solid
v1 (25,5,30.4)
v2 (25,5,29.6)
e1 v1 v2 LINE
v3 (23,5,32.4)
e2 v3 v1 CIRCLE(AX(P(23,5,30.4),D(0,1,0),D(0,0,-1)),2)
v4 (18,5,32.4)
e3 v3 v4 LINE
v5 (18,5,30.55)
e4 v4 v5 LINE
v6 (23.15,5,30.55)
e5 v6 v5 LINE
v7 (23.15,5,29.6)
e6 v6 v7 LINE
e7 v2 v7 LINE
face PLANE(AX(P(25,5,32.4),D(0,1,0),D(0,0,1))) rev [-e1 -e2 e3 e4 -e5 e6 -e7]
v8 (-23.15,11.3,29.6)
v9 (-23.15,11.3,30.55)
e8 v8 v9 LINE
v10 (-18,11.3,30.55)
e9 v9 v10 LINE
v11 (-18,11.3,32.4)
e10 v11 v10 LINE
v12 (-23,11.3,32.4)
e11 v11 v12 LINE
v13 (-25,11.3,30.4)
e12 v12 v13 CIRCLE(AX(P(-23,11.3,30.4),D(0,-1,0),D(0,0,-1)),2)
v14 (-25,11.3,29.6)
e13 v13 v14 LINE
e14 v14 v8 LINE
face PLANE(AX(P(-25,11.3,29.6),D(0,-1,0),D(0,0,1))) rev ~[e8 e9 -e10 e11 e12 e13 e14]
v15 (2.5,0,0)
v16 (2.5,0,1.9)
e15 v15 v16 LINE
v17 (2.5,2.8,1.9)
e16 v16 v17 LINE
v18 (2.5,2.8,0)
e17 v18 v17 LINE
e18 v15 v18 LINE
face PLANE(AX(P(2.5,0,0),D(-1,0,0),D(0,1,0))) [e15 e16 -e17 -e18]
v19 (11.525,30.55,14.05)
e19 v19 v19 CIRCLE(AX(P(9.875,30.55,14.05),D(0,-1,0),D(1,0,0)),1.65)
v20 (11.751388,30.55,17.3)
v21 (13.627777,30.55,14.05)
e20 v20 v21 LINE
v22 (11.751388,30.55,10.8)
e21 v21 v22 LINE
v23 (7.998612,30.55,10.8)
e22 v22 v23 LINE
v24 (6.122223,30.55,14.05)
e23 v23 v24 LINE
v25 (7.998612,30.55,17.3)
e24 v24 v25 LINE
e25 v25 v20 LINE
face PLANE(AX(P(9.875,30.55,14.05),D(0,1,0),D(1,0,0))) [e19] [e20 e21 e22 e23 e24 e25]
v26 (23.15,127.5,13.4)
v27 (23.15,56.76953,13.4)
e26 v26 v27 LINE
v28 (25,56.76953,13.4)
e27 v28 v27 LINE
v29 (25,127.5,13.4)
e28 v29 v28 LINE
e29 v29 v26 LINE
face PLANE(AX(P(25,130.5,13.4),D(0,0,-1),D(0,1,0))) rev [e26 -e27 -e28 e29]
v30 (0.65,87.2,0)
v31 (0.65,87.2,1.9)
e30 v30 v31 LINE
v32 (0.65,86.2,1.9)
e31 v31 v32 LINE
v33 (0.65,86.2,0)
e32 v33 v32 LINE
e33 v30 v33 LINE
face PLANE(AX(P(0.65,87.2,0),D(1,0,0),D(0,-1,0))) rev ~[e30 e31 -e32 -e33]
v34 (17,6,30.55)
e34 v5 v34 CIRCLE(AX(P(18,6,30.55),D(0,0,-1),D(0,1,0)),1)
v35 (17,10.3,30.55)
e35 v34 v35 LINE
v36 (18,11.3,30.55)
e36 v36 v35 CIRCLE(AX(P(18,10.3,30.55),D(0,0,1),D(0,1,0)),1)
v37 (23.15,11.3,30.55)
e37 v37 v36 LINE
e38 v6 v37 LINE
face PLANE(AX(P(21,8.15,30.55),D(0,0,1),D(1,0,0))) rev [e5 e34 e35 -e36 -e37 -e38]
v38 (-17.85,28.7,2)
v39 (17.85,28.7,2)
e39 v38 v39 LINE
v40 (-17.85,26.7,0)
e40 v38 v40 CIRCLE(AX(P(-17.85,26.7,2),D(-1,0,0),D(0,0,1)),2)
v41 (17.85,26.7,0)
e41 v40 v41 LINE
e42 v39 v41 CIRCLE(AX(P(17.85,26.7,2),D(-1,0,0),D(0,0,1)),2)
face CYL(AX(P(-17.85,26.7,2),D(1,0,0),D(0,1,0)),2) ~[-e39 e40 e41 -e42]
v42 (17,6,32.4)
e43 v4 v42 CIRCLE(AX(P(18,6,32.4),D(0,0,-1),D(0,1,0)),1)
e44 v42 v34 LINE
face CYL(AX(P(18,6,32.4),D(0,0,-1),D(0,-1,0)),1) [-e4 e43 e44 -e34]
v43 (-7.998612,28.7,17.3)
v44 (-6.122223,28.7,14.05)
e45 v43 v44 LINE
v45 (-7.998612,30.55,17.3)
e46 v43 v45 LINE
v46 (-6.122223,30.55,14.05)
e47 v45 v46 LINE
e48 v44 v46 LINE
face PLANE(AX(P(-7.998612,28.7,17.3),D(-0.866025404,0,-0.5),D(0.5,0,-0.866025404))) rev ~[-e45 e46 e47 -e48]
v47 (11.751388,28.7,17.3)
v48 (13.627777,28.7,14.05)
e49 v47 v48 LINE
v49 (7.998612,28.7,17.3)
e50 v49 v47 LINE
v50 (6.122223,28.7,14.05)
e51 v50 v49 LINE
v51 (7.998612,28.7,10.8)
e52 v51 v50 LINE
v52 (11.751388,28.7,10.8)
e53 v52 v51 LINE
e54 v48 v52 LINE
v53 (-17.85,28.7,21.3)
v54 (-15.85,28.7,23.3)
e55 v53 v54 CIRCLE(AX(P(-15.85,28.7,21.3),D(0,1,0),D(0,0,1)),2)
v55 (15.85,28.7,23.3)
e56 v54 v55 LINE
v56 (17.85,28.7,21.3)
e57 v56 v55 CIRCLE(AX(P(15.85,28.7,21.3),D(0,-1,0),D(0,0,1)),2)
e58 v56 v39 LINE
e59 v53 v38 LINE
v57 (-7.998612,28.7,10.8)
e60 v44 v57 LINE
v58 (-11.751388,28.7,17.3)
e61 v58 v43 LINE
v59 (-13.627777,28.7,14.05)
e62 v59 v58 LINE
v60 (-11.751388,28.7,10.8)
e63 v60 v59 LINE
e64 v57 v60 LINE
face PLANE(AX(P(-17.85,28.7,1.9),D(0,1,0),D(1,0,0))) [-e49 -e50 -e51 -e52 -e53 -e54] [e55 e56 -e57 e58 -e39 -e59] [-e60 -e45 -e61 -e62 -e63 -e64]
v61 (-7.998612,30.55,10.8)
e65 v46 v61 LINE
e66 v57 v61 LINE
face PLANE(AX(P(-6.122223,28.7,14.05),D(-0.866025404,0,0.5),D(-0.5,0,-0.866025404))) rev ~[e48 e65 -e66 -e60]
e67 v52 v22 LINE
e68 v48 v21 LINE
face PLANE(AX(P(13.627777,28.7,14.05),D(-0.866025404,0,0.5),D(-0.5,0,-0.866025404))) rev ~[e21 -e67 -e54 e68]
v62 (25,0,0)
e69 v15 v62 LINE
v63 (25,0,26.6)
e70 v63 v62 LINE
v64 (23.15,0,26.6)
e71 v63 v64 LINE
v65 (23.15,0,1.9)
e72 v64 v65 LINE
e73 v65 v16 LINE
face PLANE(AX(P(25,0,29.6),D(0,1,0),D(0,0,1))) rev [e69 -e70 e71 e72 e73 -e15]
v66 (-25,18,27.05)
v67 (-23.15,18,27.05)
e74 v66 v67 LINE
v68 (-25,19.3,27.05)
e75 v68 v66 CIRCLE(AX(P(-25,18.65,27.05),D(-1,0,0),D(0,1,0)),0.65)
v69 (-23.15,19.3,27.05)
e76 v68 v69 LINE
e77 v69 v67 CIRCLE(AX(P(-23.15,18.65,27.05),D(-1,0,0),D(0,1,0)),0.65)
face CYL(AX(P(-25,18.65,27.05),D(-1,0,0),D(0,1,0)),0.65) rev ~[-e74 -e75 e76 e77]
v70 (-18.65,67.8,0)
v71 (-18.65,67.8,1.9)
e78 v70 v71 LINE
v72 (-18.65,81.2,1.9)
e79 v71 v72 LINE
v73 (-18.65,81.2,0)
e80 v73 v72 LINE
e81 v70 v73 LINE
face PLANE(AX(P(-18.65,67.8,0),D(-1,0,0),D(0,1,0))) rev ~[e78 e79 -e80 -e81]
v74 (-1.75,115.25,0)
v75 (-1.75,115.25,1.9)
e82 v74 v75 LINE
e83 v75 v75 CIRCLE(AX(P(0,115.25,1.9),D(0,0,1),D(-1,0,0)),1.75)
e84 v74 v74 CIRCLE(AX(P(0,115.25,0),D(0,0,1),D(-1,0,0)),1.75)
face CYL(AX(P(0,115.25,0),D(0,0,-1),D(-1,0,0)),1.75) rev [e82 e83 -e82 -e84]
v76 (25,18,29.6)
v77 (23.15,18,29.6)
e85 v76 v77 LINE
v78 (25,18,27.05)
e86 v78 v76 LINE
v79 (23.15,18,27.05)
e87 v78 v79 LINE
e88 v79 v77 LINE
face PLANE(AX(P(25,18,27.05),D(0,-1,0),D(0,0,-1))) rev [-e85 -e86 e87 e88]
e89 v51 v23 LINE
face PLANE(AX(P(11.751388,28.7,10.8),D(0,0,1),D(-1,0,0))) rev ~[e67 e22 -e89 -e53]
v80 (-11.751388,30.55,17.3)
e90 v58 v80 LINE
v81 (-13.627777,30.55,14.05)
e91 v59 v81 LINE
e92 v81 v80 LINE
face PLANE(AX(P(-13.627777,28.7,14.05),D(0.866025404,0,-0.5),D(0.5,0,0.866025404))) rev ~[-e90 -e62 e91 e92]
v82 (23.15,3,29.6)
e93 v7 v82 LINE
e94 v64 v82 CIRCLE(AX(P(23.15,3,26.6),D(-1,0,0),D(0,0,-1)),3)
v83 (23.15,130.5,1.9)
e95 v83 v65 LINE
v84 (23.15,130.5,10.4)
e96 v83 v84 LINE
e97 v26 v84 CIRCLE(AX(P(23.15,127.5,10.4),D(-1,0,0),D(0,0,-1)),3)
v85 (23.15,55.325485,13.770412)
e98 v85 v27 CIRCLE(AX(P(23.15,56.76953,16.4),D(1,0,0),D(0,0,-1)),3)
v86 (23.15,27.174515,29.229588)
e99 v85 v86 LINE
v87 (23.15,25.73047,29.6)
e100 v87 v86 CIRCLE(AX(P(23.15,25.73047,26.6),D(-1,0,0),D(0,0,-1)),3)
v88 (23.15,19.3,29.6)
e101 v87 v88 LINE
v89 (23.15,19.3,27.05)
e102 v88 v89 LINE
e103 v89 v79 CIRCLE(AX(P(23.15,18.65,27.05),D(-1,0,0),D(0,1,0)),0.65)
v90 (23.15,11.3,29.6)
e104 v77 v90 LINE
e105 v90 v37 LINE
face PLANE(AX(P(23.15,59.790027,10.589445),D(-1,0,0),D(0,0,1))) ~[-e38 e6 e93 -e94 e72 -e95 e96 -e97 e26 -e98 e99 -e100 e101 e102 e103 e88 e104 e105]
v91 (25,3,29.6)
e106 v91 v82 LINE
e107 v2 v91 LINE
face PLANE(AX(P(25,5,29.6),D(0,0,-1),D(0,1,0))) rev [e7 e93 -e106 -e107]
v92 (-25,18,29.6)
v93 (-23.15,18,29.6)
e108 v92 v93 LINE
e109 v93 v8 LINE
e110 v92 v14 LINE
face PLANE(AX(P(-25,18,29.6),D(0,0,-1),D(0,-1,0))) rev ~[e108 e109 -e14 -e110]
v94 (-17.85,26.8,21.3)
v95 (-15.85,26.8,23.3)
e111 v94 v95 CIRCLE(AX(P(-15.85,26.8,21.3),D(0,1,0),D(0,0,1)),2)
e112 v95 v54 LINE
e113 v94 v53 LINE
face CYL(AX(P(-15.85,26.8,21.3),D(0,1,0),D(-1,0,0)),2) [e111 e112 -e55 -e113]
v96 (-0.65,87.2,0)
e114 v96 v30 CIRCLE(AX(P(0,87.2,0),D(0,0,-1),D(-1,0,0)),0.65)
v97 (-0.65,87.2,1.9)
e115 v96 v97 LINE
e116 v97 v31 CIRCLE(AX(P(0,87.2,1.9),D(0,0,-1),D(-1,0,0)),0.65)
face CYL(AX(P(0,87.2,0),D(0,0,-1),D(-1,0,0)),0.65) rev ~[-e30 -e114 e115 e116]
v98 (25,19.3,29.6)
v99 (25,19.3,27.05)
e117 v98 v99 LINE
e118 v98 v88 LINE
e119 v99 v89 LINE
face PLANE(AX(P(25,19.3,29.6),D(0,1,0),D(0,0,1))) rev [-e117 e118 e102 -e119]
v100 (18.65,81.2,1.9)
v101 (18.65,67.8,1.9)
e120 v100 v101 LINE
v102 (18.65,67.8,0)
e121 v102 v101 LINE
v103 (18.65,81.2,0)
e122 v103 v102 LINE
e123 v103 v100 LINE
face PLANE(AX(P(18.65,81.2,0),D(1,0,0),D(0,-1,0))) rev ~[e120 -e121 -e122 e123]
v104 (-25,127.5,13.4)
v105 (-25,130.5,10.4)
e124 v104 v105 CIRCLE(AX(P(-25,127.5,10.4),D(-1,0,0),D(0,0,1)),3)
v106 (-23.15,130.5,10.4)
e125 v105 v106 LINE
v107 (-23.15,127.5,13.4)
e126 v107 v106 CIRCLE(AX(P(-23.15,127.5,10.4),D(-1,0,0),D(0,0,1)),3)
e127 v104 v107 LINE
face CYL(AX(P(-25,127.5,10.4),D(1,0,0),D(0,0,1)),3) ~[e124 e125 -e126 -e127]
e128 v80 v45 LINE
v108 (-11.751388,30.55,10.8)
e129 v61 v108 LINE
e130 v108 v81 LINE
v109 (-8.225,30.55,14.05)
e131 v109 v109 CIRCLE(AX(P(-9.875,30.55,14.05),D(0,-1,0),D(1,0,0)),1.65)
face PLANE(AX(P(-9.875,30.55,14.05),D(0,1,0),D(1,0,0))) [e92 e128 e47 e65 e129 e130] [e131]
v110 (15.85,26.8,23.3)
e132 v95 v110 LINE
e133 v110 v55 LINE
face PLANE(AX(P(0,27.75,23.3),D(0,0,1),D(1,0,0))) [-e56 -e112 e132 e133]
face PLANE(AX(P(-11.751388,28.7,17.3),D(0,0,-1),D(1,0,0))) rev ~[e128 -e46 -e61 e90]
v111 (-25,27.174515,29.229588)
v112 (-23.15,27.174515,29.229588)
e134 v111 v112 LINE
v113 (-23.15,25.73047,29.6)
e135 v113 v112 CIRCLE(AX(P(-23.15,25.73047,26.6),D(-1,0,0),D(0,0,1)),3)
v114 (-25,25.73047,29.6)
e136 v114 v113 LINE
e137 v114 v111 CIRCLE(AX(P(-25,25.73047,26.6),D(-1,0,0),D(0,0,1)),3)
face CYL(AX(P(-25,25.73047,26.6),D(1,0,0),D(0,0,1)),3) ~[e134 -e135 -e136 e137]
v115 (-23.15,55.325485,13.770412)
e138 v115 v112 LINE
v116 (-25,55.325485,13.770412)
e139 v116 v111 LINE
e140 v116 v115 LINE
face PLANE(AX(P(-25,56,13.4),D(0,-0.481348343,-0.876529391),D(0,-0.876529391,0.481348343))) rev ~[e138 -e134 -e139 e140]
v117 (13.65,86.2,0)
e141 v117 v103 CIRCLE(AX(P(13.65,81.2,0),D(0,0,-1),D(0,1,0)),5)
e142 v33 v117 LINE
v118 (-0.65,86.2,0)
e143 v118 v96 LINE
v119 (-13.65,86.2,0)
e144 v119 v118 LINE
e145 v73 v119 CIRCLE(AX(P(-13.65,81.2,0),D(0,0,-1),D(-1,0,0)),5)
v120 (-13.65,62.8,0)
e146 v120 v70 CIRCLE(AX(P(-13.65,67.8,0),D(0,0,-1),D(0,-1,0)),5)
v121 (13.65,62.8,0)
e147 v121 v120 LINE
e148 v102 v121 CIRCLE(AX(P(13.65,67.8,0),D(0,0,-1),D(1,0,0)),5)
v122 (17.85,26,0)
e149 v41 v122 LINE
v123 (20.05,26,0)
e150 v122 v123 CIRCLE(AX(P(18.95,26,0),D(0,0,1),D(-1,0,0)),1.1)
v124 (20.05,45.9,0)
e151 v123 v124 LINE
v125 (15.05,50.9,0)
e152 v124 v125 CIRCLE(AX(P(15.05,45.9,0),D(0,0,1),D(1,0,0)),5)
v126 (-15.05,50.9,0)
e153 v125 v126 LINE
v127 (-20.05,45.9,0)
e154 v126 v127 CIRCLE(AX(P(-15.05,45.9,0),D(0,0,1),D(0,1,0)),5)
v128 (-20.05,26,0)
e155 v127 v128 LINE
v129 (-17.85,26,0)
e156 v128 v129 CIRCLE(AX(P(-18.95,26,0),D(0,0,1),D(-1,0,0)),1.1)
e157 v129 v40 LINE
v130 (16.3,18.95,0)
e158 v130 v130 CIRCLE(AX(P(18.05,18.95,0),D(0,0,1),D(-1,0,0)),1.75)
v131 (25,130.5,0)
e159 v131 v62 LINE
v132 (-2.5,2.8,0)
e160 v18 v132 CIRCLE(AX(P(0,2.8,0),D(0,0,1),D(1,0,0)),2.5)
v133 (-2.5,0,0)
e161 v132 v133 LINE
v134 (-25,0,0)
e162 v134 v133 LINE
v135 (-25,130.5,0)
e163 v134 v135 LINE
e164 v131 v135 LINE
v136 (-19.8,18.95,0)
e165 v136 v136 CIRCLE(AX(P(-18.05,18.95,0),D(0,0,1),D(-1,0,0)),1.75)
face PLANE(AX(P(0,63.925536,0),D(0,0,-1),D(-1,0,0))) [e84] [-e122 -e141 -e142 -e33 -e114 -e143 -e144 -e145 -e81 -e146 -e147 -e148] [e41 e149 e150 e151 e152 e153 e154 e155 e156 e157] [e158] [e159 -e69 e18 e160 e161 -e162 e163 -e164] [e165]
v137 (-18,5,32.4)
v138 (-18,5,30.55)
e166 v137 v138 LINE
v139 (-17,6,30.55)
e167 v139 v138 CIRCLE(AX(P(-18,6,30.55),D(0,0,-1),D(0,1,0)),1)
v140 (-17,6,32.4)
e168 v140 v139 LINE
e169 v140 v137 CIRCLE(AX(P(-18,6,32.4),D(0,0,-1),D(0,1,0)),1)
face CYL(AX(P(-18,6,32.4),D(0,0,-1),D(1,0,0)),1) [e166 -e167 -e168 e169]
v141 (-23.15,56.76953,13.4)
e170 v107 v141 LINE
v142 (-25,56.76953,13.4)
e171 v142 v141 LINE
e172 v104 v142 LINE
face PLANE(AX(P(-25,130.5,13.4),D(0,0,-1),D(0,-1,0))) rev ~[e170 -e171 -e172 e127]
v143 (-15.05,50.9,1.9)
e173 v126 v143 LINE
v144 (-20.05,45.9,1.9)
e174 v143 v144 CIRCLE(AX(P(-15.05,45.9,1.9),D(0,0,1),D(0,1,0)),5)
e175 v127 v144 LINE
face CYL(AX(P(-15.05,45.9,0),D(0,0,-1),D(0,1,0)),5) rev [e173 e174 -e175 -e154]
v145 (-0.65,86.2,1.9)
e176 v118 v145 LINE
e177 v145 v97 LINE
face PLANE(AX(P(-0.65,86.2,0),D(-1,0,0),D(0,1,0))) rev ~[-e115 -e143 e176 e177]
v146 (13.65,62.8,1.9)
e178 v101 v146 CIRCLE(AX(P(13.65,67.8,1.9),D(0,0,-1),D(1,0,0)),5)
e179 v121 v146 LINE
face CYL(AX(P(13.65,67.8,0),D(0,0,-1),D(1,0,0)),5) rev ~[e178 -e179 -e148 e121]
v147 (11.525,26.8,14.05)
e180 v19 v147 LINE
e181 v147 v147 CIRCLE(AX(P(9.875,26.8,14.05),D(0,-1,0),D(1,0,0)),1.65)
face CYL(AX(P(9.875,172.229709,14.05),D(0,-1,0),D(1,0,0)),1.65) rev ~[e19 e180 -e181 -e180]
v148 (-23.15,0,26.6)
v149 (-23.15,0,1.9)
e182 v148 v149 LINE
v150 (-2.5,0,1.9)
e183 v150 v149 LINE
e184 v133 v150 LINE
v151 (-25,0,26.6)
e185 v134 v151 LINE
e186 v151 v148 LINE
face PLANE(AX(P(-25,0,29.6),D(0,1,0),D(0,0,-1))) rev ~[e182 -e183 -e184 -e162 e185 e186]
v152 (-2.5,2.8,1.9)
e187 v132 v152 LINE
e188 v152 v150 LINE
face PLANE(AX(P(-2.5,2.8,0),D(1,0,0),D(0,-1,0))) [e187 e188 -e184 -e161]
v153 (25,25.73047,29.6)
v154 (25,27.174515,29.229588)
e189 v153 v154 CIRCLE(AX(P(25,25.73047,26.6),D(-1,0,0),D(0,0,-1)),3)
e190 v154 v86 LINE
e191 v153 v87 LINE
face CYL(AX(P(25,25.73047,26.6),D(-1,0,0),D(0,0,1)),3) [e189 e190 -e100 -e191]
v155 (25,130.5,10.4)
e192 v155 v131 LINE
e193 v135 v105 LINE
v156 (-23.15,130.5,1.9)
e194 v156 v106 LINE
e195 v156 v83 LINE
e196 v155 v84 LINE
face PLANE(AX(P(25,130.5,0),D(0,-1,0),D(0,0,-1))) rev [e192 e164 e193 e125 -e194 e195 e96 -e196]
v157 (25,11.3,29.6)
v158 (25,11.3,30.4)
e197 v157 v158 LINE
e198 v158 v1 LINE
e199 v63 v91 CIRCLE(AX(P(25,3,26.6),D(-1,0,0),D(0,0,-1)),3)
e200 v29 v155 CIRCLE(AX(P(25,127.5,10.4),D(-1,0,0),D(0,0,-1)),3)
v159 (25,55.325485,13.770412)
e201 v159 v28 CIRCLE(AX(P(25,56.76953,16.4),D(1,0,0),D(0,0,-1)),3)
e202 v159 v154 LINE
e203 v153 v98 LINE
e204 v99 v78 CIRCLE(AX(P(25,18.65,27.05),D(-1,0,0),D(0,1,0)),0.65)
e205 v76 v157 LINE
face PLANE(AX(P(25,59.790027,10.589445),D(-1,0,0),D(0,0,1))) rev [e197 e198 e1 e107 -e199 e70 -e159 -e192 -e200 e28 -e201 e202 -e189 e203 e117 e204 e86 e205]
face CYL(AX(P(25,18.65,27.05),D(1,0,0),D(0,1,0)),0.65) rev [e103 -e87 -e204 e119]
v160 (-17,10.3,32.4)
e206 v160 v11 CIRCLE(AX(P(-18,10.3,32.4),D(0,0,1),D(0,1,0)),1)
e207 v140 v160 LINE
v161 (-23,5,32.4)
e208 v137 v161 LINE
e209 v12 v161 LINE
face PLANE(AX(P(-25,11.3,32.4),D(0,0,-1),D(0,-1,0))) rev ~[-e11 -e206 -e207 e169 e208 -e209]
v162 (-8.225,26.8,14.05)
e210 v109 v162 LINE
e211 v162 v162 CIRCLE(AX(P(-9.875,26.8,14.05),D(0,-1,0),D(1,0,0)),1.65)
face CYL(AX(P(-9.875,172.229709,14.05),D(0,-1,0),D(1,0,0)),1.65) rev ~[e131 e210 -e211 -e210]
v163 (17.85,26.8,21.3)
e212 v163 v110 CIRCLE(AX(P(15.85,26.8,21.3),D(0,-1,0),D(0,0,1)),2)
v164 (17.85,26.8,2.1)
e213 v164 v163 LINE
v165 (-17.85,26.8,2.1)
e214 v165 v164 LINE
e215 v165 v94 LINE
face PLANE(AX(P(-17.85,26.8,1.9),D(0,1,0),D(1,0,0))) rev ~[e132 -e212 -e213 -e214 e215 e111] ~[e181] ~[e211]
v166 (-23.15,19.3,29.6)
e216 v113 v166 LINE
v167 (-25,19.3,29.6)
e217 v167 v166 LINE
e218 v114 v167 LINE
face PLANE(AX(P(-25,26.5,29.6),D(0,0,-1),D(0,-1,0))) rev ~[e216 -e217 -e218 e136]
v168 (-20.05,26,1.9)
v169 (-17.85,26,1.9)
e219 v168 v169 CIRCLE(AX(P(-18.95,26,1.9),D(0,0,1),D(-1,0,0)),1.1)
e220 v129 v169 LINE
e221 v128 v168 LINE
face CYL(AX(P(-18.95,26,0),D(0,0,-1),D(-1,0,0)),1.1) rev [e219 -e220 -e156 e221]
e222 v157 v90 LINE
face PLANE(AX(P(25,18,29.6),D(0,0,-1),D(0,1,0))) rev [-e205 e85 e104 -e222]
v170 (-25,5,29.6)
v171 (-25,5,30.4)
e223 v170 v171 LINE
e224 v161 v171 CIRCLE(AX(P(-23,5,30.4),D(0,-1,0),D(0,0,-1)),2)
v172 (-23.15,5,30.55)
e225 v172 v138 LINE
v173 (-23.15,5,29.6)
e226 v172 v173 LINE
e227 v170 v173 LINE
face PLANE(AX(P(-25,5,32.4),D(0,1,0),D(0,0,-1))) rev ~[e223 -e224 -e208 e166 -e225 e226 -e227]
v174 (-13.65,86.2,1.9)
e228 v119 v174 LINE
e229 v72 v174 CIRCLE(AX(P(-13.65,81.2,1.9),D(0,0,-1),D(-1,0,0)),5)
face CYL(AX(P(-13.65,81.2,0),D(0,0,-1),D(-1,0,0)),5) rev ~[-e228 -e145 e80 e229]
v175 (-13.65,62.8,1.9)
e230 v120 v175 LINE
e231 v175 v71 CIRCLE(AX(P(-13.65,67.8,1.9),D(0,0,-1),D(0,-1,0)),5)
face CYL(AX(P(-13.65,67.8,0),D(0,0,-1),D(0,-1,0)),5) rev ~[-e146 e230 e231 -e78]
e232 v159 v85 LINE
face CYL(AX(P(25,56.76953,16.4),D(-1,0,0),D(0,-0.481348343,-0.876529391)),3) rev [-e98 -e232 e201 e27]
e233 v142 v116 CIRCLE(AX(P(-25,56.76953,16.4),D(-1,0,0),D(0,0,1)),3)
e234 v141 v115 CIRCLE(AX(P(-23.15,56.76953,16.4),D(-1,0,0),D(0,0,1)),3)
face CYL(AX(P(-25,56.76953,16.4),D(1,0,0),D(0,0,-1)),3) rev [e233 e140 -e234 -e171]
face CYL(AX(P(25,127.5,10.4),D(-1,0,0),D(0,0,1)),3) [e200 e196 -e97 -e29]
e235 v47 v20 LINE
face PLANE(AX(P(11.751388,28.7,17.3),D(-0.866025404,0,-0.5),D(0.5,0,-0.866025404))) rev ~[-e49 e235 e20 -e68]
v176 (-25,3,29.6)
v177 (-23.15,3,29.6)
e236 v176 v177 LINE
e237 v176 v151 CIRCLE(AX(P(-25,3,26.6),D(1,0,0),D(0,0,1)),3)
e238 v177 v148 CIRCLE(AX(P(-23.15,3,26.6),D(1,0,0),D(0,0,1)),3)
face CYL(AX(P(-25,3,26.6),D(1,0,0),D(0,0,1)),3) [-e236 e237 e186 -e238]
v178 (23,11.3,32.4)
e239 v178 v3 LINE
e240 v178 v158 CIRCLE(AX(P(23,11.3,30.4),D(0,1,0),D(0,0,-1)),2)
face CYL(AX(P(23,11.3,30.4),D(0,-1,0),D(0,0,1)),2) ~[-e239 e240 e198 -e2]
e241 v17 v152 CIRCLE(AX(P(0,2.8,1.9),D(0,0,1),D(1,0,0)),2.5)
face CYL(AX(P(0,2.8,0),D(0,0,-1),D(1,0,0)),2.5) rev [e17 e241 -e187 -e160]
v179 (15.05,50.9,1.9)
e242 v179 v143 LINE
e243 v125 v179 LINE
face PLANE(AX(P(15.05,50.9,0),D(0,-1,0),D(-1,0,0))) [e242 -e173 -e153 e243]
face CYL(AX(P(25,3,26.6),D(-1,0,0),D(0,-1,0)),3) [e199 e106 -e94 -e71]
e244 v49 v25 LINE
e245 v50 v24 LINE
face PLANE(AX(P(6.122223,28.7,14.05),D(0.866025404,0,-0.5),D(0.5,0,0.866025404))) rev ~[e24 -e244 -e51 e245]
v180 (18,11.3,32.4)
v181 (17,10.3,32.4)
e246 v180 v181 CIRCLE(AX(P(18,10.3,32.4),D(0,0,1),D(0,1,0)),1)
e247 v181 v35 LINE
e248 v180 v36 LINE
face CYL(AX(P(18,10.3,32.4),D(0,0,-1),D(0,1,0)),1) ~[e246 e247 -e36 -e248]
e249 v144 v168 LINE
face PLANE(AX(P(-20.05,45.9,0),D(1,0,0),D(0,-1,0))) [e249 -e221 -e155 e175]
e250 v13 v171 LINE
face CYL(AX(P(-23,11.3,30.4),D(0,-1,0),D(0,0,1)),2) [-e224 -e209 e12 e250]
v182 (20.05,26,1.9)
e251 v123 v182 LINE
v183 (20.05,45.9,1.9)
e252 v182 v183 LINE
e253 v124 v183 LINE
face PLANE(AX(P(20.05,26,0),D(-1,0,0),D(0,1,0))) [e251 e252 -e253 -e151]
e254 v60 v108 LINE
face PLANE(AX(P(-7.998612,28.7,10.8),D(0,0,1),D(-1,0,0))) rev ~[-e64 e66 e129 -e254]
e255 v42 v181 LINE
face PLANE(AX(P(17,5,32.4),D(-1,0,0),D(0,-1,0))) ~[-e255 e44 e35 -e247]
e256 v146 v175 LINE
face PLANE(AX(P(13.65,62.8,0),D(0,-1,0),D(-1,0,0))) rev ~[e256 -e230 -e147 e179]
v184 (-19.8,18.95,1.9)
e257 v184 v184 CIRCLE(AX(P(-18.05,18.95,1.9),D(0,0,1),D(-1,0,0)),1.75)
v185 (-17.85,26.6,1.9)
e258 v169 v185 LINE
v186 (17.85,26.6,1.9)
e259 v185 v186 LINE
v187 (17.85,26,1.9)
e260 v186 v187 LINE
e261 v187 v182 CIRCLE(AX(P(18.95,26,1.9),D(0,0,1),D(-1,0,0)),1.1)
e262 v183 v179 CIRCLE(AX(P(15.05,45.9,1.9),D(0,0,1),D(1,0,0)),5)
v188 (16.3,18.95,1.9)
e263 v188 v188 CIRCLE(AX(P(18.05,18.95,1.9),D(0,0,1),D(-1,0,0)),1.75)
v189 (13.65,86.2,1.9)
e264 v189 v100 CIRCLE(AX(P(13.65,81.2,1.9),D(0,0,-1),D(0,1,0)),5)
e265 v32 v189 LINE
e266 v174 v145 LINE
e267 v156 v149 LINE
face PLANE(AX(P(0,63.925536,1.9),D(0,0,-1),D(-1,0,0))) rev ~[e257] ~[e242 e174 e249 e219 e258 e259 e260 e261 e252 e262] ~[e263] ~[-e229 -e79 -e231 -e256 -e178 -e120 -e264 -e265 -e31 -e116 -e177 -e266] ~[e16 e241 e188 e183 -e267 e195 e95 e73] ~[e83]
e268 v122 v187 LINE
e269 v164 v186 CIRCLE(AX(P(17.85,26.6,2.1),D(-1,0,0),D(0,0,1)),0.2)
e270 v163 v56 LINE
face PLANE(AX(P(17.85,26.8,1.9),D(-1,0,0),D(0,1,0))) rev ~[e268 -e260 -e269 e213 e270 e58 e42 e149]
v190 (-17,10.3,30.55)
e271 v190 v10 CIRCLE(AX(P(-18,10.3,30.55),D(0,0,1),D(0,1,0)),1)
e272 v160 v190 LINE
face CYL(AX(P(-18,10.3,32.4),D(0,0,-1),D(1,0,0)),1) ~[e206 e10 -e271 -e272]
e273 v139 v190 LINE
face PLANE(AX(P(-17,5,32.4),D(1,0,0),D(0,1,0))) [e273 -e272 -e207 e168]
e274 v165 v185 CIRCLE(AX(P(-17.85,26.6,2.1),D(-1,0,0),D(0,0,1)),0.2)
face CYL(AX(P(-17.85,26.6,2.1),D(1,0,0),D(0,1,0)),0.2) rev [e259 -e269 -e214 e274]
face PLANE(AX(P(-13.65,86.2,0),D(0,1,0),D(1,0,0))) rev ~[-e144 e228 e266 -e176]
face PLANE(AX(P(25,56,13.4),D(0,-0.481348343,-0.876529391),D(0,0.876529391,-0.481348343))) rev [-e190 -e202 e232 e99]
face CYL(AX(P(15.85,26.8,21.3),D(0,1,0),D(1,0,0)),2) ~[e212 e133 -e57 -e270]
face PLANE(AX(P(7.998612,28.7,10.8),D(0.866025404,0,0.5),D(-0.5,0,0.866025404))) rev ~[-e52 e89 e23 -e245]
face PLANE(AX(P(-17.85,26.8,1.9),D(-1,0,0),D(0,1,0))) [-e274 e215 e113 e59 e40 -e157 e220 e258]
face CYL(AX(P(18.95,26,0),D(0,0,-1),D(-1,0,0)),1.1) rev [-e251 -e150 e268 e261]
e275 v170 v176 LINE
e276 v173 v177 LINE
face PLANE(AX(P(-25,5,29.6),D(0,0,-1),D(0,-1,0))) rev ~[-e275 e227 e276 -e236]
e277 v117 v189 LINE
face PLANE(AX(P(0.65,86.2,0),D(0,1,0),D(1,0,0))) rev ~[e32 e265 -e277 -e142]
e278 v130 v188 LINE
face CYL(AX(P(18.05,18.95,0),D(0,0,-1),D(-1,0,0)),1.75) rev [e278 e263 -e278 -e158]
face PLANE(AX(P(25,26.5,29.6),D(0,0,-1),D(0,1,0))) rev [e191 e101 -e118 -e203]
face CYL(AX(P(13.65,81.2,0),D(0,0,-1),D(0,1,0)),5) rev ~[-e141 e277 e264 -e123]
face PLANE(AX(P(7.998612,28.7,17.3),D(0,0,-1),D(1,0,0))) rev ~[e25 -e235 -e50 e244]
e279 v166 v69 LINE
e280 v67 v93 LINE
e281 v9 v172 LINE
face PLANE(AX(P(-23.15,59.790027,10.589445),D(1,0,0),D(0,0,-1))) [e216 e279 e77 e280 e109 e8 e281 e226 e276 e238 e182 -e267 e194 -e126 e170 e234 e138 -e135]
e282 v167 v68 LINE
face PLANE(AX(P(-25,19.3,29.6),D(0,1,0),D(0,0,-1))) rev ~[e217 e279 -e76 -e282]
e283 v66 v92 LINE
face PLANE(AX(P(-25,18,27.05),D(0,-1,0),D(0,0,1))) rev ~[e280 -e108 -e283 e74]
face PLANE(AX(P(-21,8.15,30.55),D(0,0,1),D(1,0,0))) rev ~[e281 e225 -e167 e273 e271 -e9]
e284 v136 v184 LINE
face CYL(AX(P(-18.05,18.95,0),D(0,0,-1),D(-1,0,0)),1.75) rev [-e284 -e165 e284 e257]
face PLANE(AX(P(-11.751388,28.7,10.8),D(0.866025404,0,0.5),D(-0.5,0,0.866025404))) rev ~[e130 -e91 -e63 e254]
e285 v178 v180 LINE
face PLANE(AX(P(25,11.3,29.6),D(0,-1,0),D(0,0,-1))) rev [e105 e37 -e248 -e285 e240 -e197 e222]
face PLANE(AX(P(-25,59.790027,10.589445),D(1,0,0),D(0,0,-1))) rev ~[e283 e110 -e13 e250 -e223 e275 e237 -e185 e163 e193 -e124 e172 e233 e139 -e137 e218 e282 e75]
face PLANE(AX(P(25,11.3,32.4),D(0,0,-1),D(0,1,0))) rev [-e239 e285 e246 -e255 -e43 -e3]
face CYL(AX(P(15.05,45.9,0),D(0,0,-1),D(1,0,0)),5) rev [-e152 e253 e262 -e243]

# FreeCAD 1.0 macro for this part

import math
import FreeCAD as App
import Part
import Sketcher
Q = App.Units.Quantity


def edges_at(feature, points):
    """Names of the edges that pass closest to the given points."""
    edges = feature.Shape.Edges
    near = lambda p: min(range(len(edges)), key=lambda i: edges[i].distToShape(Part.Vertex(*p))[0])
    return sorted({f"Edge{near(p) + 1}" for p in points})

doc = App.newDocument("Part")
params = doc.addObject("Spreadsheet::Sheet", "Params")
for row, (alias, value) in enumerate([
    ("sketch1_radius", "5 mm"),
    ("sketch1_diameter", "3.5 mm"),
    ("sketch1_radius2", "2.5 mm"),
    ("sketch1_radius3", "1.1 mm"),
    ("sketch1_width", "50 mm"),
    ("pad1_length", "1.9 mm"),
    ("sketch2_width", "35.7 mm"),
    ("sketch2_height", "1.9 mm"),
    ("pad2_length", "21.4 mm"),
    ("fillet_radius", "2 mm"),
    ("fillet2_radius", "0.2 mm"),
    ("fillet3_radius", "2 mm"),
    ("pad3_length", "1.85 mm"),
    ("sketch4_diameter", "3.3 mm"),
    ("hole_diameter", "3.3 mm"),
    ("sketch5_width", "5 mm"),
    ("sketch5_radius", "0.65 mm"),
    ("sketch5_width2", "74.5 mm"),
    ("sketch5_width3", "130.5 mm"),
    ("sketch5_width4", "6.3 mm"),
    ("pad4_length", "1.85 mm"),
    ("fillet4_radius", "3 mm"),
    ("sketch6_width", "8 mm"),
    ("sketch6_height", "6.3 mm"),
    ("pad5_length", "1.85 mm"),
    ("fillet5_radius", "1 mm"),
    ("fillet6_radius", "2 mm"),
    ("fillet7_radius", "3 mm"),
    ("fillet8_radius", "1 mm"),
    ("fillet9_radius", "2 mm"),
], start=1):
    params.set(f"A{row}", alias)
    params.set(f"B{row}", "=" + value)
    params.setAlias(f"B{row}", alias)

body = doc.addObject("PartDesign::Body", "Body")

sketch1 = body.newObject("Sketcher::SketchObject", "Sketch")
sketch1.AttachmentSupport = (doc.getObject("XY_Plane"), [""])
sketch1.MapMode = "FlatFace"
sketch1.addGeometry([
    Part.LineSegment(App.Vector(2.5, 0, 0), App.Vector(25, 0, 0)),
    Part.LineSegment(App.Vector(25, 0, 0), App.Vector(25, 130.5, 0)),
    Part.LineSegment(App.Vector(25, 130.5, 0), App.Vector(-25, 130.5, 0)),
    Part.LineSegment(App.Vector(-25, 130.5, 0), App.Vector(-25, 0, 0)),
    Part.LineSegment(App.Vector(-25, 0, 0), App.Vector(-2.5, 0, 0)),
    Part.LineSegment(App.Vector(-2.5, 0, 0), App.Vector(-2.5, 2.8, 0)),
    Part.ArcOfCircle(Part.Circle(App.Vector(0, 2.8, 0), App.Vector(0, 0, 1), 2.5), math.radians(0), math.radians(180)),
    Part.LineSegment(App.Vector(2.5, 2.8, 0), App.Vector(2.5, 0, 0)),
    Part.Circle(App.Vector(18.1, 18.9, 0), App.Vector(0, 0, 1), 1.8),
    Part.ArcOfCircle(Part.Circle(App.Vector(-18.9, 26, 0), App.Vector(0, 0, 1), 1.1), math.radians(180), math.radians(360)),
    Part.LineSegment(App.Vector(-20.1, 26, 0), App.Vector(-20.1, 45.9, 0)),
    Part.ArcOfCircle(Part.Circle(App.Vector(-15.1, 45.9, 0), App.Vector(0, 0, 1), 5), math.radians(90), math.radians(180)),
    Part.LineSegment(App.Vector(-15.1, 50.9, 0), App.Vector(15.1, 50.9, 0)),
    Part.ArcOfCircle(Part.Circle(App.Vector(15.1, 45.9, 0), App.Vector(0, 0, 1), 5), math.radians(0), math.radians(90)),
    Part.LineSegment(App.Vector(20.1, 45.9, 0), App.Vector(20.1, 26, 0)),
    Part.ArcOfCircle(Part.Circle(App.Vector(18.9, 26, 0), App.Vector(0, 0, 1), 1.1), math.radians(180), math.radians(360)),
    Part.LineSegment(App.Vector(17.9, 26, 0), App.Vector(17.9, 28.7, 0)),
    Part.LineSegment(App.Vector(17.9, 28.7, 0), App.Vector(-17.9, 28.7, 0)),
    Part.LineSegment(App.Vector(-17.9, 28.7, 0), App.Vector(-17.9, 26, 0)),
    Part.Circle(App.Vector(-18.1, 18.9, 0), App.Vector(0, 0, 1), 1.8),
    Part.LineSegment(App.Vector(-13.7, 86.2, 0), App.Vector(-0.7, 86.2, 0)),
    Part.LineSegment(App.Vector(-0.7, 86.2, 0), App.Vector(-0.7, 87.2, 0)),
    Part.ArcOfCircle(Part.Circle(App.Vector(0, 87.2, 0), App.Vector(0, 0, 1), 0.7), math.radians(0), math.radians(180)),
    Part.LineSegment(App.Vector(0.7, 87.2, 0), App.Vector(0.7, 86.2, 0)),
    Part.LineSegment(App.Vector(0.7, 86.2, 0), App.Vector(13.7, 86.2, 0)),
    Part.ArcOfCircle(Part.Circle(App.Vector(13.7, 81.2, 0), App.Vector(0, 0, 1), 5), math.radians(0), math.radians(90)),
    Part.LineSegment(App.Vector(18.6, 81.2, 0), App.Vector(18.6, 67.8, 0)),
    Part.ArcOfCircle(Part.Circle(App.Vector(13.7, 67.8, 0), App.Vector(0, 0, 1), 5), math.radians(-90), math.radians(0)),
    Part.LineSegment(App.Vector(13.7, 62.8, 0), App.Vector(-13.7, 62.8, 0)),
    Part.ArcOfCircle(Part.Circle(App.Vector(-13.7, 67.8, 0), App.Vector(0, 0, 1), 5), math.radians(180), math.radians(270)),
    Part.LineSegment(App.Vector(-18.6, 67.8, 0), App.Vector(-18.6, 81.2, 0)),
    Part.ArcOfCircle(Part.Circle(App.Vector(-13.7, 81.2, 0), App.Vector(0, 0, 1), 5), math.radians(90), math.radians(180)),
    Part.Circle(App.Vector(0, 115.2, 0), App.Vector(0, 0, 1), 1.8),
], False)
sketch1.addConstraint([
    Sketcher.Constraint("Coincident", 0, 2, 1, 1),
    Sketcher.Constraint("Coincident", 1, 2, 2, 1),
    Sketcher.Constraint("Coincident", 2, 2, 3, 1),
    Sketcher.Constraint("Coincident", 3, 2, 4, 1),
    Sketcher.Constraint("Coincident", 4, 2, 5, 1),
    Sketcher.Constraint("Tangent", 5, 2, 6, 2),
    Sketcher.Constraint("Tangent", 6, 1, 7, 1),
    Sketcher.Constraint("Coincident", 7, 2, 0, 1),
    Sketcher.Constraint("Tangent", 9, 1, 10, 1),
    Sketcher.Constraint("Tangent", 10, 2, 11, 2),
    Sketcher.Constraint("Tangent", 11, 1, 12, 1),
    Sketcher.Constraint("Tangent", 12, 2, 13, 2),
    Sketcher.Constraint("Tangent", 13, 1, 14, 1),
    Sketcher.Constraint("Tangent", 14, 2, 15, 2),
    Sketcher.Constraint("Tangent", 15, 1, 16, 1),
    Sketcher.Constraint("Coincident", 16, 2, 17, 1),
    Sketcher.Constraint("Coincident", 17, 2, 18, 1),
    Sketcher.Constraint("Tangent", 18, 2, 9, 2),
    Sketcher.Constraint("Coincident", 20, 2, 21, 1),
    Sketcher.Constraint("Tangent", 21, 2, 22, 2),
    Sketcher.Constraint("Tangent", 22, 1, 23, 1),
    Sketcher.Constraint("Coincident", 23, 2, 24, 1),
    Sketcher.Constraint("Tangent", 24, 2, 25, 2),
    Sketcher.Constraint("Tangent", 25, 1, 26, 1),
    Sketcher.Constraint("Tangent", 26, 2, 27, 2),
    Sketcher.Constraint("Tangent", 27, 1, 28, 1),
    Sketcher.Constraint("Tangent", 28, 2, 29, 2),
    Sketcher.Constraint("Tangent", 29, 1, 30, 1),
    Sketcher.Constraint("Tangent", 30, 2, 31, 2),
    Sketcher.Constraint("Tangent", 31, 1, 20, 1),
    Sketcher.Constraint("Horizontal", 0),
    Sketcher.Constraint("Vertical", 1),
    Sketcher.Constraint("Horizontal", 2),
    Sketcher.Constraint("Vertical", 3),
    Sketcher.Constraint("Horizontal", 4),
    Sketcher.Constraint("Vertical", 5),
    Sketcher.Constraint("Vertical", 7),
    Sketcher.Constraint("Vertical", 10),
    Sketcher.Constraint("Horizontal", 12),
    Sketcher.Constraint("Vertical", 14),
    Sketcher.Constraint("Vertical", 16),
    Sketcher.Constraint("Horizontal", 17),
    Sketcher.Constraint("Vertical", 18),
    Sketcher.Constraint("Horizontal", 20),
    Sketcher.Constraint("Vertical", 21),
    Sketcher.Constraint("Vertical", 23),
    Sketcher.Constraint("Horizontal", 24),
    Sketcher.Constraint("Vertical", 26),
    Sketcher.Constraint("Horizontal", 28),
    Sketcher.Constraint("Vertical", 30),
    Sketcher.Constraint("Equal", 11, 13),
    Sketcher.Constraint("Equal", 9, 15),
    Sketcher.Constraint("Equal", 8, 19),
    Sketcher.Constraint("Equal", 13, 25),
    Sketcher.Constraint("Equal", 25, 27),
    Sketcher.Constraint("Equal", 27, 29),
    Sketcher.Constraint("Equal", 29, 31),
    Sketcher.Constraint("Equal", 19, 32),
    Sketcher.Constraint("Symmetric", 0, 2, 3, 2, -1, 1),
    Sketcher.Constraint("Symmetric", 9, 3, 15, 3, -2),
    Sketcher.Constraint("Symmetric", 8, 3, 19, 3, -2),
    Sketcher.Constraint("Symmetric", 25, 3, 31, 3, -2),
    Sketcher.Constraint("Symmetric", 4, 2, 7, 2, -2),
    Sketcher.Constraint("PointOnObject", 22, 3, -2),
    Sketcher.Constraint("PointOnObject", 32, 3, -2),
    Sketcher.Constraint("Radius", 11, 5.0),
    Sketcher.Constraint("Diameter", 8, 3.5),
    Sketcher.Constraint("Radius", 6, 2.5),
    Sketcher.Constraint("Radius", 9, 1.1),
    Sketcher.Constraint("DistanceX", 2, 2, 2, 1, 50.0),
    Sketcher.Constraint("DistanceX", 20, 1, 20, 2, 13.0),
    Sketcher.Constraint("DistanceY", 21, 1, 21, 2, 1.0),
    Sketcher.Constraint("Radius", 22, 0.65),
    Sketcher.Constraint("DistanceX", 12, 1, 12, 2, 30.1),
    Sketcher.Constraint("DistanceY", 1, 1, 1, 2, 130.5),
    Sketcher.Constraint("DistanceY", 5, 1, 5, 2, 2.8),
    Sketcher.Constraint("DistanceY", 10, 1, 10, 2, 19.9),
    Sketcher.Constraint("DistanceY", 16, 1, 16, 2, 2.7),
    Sketcher.Constraint("DistanceY", 26, 2, 26, 1, 13.4),
    Sketcher.Constraint("DistanceY", -1, 1, 9, 3, 26.0),
    Sketcher.Constraint("DistanceX", 9, 3, 8, 3, 37.0),
    Sketcher.Constraint("DistanceY", -1, 1, 22, 3, 87.2),
    Sketcher.Constraint("DistanceY", -1, 1, 8, 3, 18.95),
    Sketcher.Constraint("DistanceY", -1, 1, 32, 3, 115.25),
])
sketch1.setExpression("Constraints[65]", "Params.sketch1_radius")
sketch1.setExpression("Constraints[66]", "Params.sketch1_diameter")
sketch1.setExpression("Constraints[67]", "Params.sketch1_radius2")
sketch1.setExpression("Constraints[68]", "Params.sketch1_radius3")
sketch1.setExpression("Constraints[69]", "Params.sketch1_width")
pad1 = body.newObject("PartDesign::Pad", "Pad")
pad1.Profile = sketch1
pad1.setExpression("Length", "Params.pad1_length")

sketch2 = body.newObject("Sketcher::SketchObject", "Sketch001")
sketch2.AttachmentSupport = (doc.getObject("XY_Plane"), [""])
sketch2.MapMode = "FlatFace"
sketch2.AttachmentOffset = App.Placement(App.Vector(0, 0, 1.9), App.Rotation())
sketch2.addGeometry([
    Part.LineSegment(App.Vector(-17.9, 28.7, 0), App.Vector(-17.9, 26.8, 0)),
    Part.LineSegment(App.Vector(-17.9, 26.8, 0), App.Vector(17.9, 26.8, 0)),
    Part.LineSegment(App.Vector(17.9, 26.8, 0), App.Vector(17.9, 28.7, 0)),
    Part.LineSegment(App.Vector(17.9, 28.7, 0), App.Vector(-17.9, 28.7, 0)),
], False)
sketch2.addConstraint([
    Sketcher.Constraint("Coincident", 0, 2, 1, 1),
    Sketcher.Constraint("Coincident", 1, 2, 2, 1),
    Sketcher.Constraint("Coincident", 2, 2, 3, 1),
    Sketcher.Constraint("Coincident", 3, 2, 0, 1),
    Sketcher.Constraint("Vertical", 0),
    Sketcher.Constraint("Horizontal", 1),
    Sketcher.Constraint("Vertical", 2),
    Sketcher.Constraint("Horizontal", 3),
    Sketcher.Constraint("DistanceX", 1, 1, 1, 2, 35.7),
    Sketcher.Constraint("DistanceY", 0, 2, 0, 1, 1.9),
    Sketcher.Constraint("DistanceY", -1, 1, 0, 2, 26.8),
    Sketcher.Constraint("DistanceX", 0, 2, -1, 1, 17.85),
])
sketch2.setExpression("Constraints[8]", "Params.sketch2_width")
sketch2.setExpression("Constraints[9]", "Params.sketch2_height")
pad2 = body.newObject("PartDesign::Pad", "Pad001")
pad2.Profile = sketch2
pad2.setExpression("Length", "Params.pad2_length")
doc.recompute()

fillet = body.newObject("PartDesign::Fillet", "Fillet")
fillet.Base = (pad2, edges_at(pad2, [(-17.85, 27.75, 23.3), (17.85, 27.75, 23.3)]))
fillet.setExpression("Radius", "Params.fillet_radius")
doc.recompute()

fillet2 = body.newObject("PartDesign::Fillet", "Fillet001")
fillet2.Base = (fillet, edges_at(fillet, [(0, 26.8, 1.9)]))
fillet2.setExpression("Radius", "Params.fillet2_radius")
doc.recompute()

fillet3 = body.newObject("PartDesign::Fillet", "Fillet002")
fillet3.Base = (fillet2, edges_at(fillet2, [(0, 28.7, 0)]))
fillet3.setExpression("Radius", "Params.fillet3_radius")

sketch3 = body.newObject("Sketcher::SketchObject", "Sketch002")
sketch3.AttachmentSupport = (doc.getObject("XZ_Plane"), [""])
sketch3.MapMode = "FlatFace"
sketch3.AttachmentOffset = App.Placement(App.Vector(0, 0, -28.7), App.Rotation())
sketch3.addGeometry([
    Part.LineSegment(App.Vector(6.1, 14.1, 0), App.Vector(8, 17.3, 0)),
    Part.LineSegment(App.Vector(8, 17.3, 0), App.Vector(11.8, 17.3, 0)),
    Part.LineSegment(App.Vector(11.8, 17.3, 0), App.Vector(13.6, 14.1, 0)),
    Part.LineSegment(App.Vector(13.6, 14.1, 0), App.Vector(11.8, 10.8, 0)),
    Part.LineSegment(App.Vector(11.8, 10.8, 0), App.Vector(8, 10.8, 0)),
    Part.LineSegment(App.Vector(8, 10.8, 0), App.Vector(6.1, 14.1, 0)),
    Part.LineSegment(App.Vector(-6.1, 14.1, 0), App.Vector(-8, 10.8, 0)),
    Part.LineSegment(App.Vector(-8, 10.8, 0), App.Vector(-11.8, 10.8, 0)),
    Part.LineSegment(App.Vector(-11.8, 10.8, 0), App.Vector(-13.6, 14.1, 0)),
    Part.LineSegment(App.Vector(-13.6, 14.1, 0), App.Vector(-11.8, 17.3, 0)),
    Part.LineSegment(App.Vector(-11.8, 17.3, 0), App.Vector(-8, 17.3, 0)),
    Part.LineSegment(App.Vector(-8, 17.3, 0), App.Vector(-6.1, 14.1, 0)),
], False)
sketch3.addConstraint([
    Sketcher.Constraint("Coincident", 0, 2, 1, 1),
    Sketcher.Constraint("Coincident", 1, 2, 2, 1),
    Sketcher.Constraint("Coincident", 2, 2, 3, 1),
    Sketcher.Constraint("Coincident", 3, 2, 4, 1),
    Sketcher.Constraint("Coincident", 4, 2, 5, 1),
    Sketcher.Constraint("Coincident", 5, 2, 0, 1),
    Sketcher.Constraint("Coincident", 6, 2, 7, 1),
    Sketcher.Constraint("Coincident", 7, 2, 8, 1),
    Sketcher.Constraint("Coincident", 8, 2, 9, 1),
    Sketcher.Constraint("Coincident", 9, 2, 10, 1),
    Sketcher.Constraint("Coincident", 10, 2, 11, 1),
    Sketcher.Constraint("Coincident", 11, 2, 6, 1),
    Sketcher.Constraint("Horizontal", 1),
    Sketcher.Constraint("Horizontal", 4),
    Sketcher.Constraint("Horizontal", 7),
    Sketcher.Constraint("Horizontal", 10),
    Sketcher.Constraint("Symmetric", 4, 2, 6, 2, -2),
    Sketcher.Constraint("Symmetric", 2, 2, 8, 2, -2),
    Sketcher.Constraint("Symmetric", 1, 2, 9, 2, -2),
    Sketcher.Constraint("Symmetric", 5, 2, 11, 2, -2),
    Sketcher.Constraint("Parallel", 0, 3),
    Sketcher.Constraint("Parallel", 2, 5),
    Sketcher.Constraint("Parallel", 3, 6),
    Sketcher.Constraint("Parallel", 5, 8),
    Sketcher.Constraint("Parallel", 8, 11),
    Sketcher.Constraint("Horizontal", 2, 2, 5, 2),
    Sketcher.Constraint("Vertical", 1, 2, 3, 2),
    Sketcher.Constraint("Angle", 0, Q("60 deg")),
    Sketcher.Constraint("DistanceY", -1, 1, 0, 2, 17.3),
    Sketcher.Constraint("DistanceY", -1, 1, 3, 2, 10.8),
    Sketcher.Constraint("DistanceX", 6, 2, 3, 2, 19.75),
    Sketcher.Constraint("DistanceX", 1, 1, 1, 2, 3.752777),
])
pad3 = body.newObject("PartDesign::Pad", "Pad002")
pad3.Profile = sketch3
pad3.setExpression("Length", "Params.pad3_length")
pad3.Reversed = True

sketch4 = body.newObject("Sketcher::SketchObject", "Sketch003")
sketch4.AttachmentSupport = (doc.getObject("XZ_Plane"), [""])
sketch4.MapMode = "FlatFace"
sketch4.AttachmentOffset = App.Placement(App.Vector(0, 0, -30.55), App.Rotation())
sketch4.addGeometry([
    Part.Circle(App.Vector(9.9, 14.1, 0), App.Vector(0, 0, 1), 1.6),
    Part.Circle(App.Vector(-9.9, 14.1, 0), App.Vector(0, 0, 1), 1.6),
], False)
sketch4.addConstraint([
    Sketcher.Constraint("Equal", 0, 1),
    Sketcher.Constraint("Symmetric", 0, 3, 1, 3, -2),
    Sketcher.Constraint("Diameter", 0, 3.3),
    Sketcher.Constraint("DistanceY", -1, 1, 0, 3, 14.05),
    Sketcher.Constraint("DistanceX", 1, 3, 0, 3, 19.75),
])
sketch4.setExpression("Constraints[2]", "Params.sketch4_diameter")
doc.recompute()
hole = body.newObject("PartDesign::Hole", "Hole")
hole.Profile = sketch4
hole.ThreadType = "None"
hole.setExpression("Diameter", "Params.hole_diameter")
hole.DepthType = "ThroughAll"
hole.Reversed = True

sketch5 = body.newObject("Sketcher::SketchObject", "Sketch004")
sketch5.AttachmentSupport = (doc.getObject("YZ_Plane"), [""])
sketch5.MapMode = "FlatFace"
sketch5.AttachmentOffset = App.Placement(App.Vector(0, 0, -25), App.Rotation())
sketch5.addGeometry([
    Part.LineSegment(App.Vector(56, 13.4, 0), App.Vector(130.5, 13.4, 0)),
    Part.LineSegment(App.Vector(130.5, 13.4, 0), App.Vector(130.5, 0, 0)),
    Part.LineSegment(App.Vector(130.5, 0, 0), App.Vector(0, 0, 0)),
    Part.LineSegment(App.Vector(0, 0, 0), App.Vector(0, 29.6, 0)),
    Part.LineSegment(App.Vector(0, 29.6, 0), App.Vector(5, 29.6, 0)),
    Part.LineSegment(App.Vector(5, 29.6, 0), App.Vector(5, 32.4, 0)),
    Part.LineSegment(App.Vector(5, 32.4, 0), App.Vector(11.3, 32.4, 0)),
    Part.LineSegment(App.Vector(11.3, 32.4, 0), App.Vector(11.3, 29.6, 0)),
    Part.LineSegment(App.Vector(11.3, 29.6, 0), App.Vector(18, 29.6, 0)),
    Part.LineSegment(App.Vector(18, 29.6, 0), App.Vector(18, 27.1, 0)),
    Part.ArcOfCircle(Part.Circle(App.Vector(18.6, 27.1, 0), App.Vector(0, 0, 1), 0.7), math.radians(180), math.radians(360)),
    Part.LineSegment(App.Vector(19.3, 27.1, 0), App.Vector(19.3, 29.6, 0)),
    Part.LineSegment(App.Vector(19.3, 29.6, 0), App.Vector(26.5, 29.6, 0)),
    Part.LineSegment(App.Vector(26.5, 29.6, 0), App.Vector(56, 13.4, 0)),
], False)
sketch5.addConstraint([
    Sketcher.Constraint("Coincident", 0, 2, 1, 1),
    Sketcher.Constraint("Coincident", 1, 2, 2, 1),
    Sketcher.Constraint("Coincident", 2, 2, 3, 1),
    Sketcher.Constraint("Coincident", 3, 2, 4, 1),
    Sketcher.Constraint("Coincident", 4, 2, 5, 1),
    Sketcher.Constraint("Coincident", 5, 2, 6, 1),
    Sketcher.Constraint("Coincident", 6, 2, 7, 1),
    Sketcher.Constraint("Coincident", 7, 2, 8, 1),
    Sketcher.Constraint("Coincident", 8, 2, 9, 1),
    Sketcher.Constraint("Tangent", 9, 2, 10, 1),
    Sketcher.Constraint("Tangent", 10, 2, 11, 1),
    Sketcher.Constraint("Coincident", 11, 2, 12, 1),
    Sketcher.Constraint("Coincident", 12, 2, 13, 1),
    Sketcher.Constraint("Coincident", 13, 2, 0, 1),
    Sketcher.Constraint("Horizontal", 0),
    Sketcher.Constraint("Vertical", 1),
    Sketcher.Constraint("Horizontal", 2),
    Sketcher.Constraint("Vertical", 3),
    Sketcher.Constraint("Horizontal", 4),
    Sketcher.Constraint("Vertical", 5),
    Sketcher.Constraint("Horizontal", 6),
    Sketcher.Constraint("Vertical", 7),
    Sketcher.Constraint("Horizontal", 8),
    Sketcher.Constraint("Vertical", 9),
    Sketcher.Constraint("Vertical", 11),
    Sketcher.Constraint("Horizontal", 12),
    Sketcher.Constraint("Coincident", 2, 2, -1, 1),
    Sketcher.Constraint("Horizontal", 4, 2, 7, 2),
    Sketcher.Constraint("Horizontal", 8, 2, 11, 2),
    Sketcher.Constraint("DistanceX", 4, 1, 4, 2, 5.0),
    Sketcher.Constraint("Radius", 10, 0.65),
    Sketcher.Constraint("DistanceX", 0, 1, 0, 2, 74.5),
    Sketcher.Constraint("DistanceX", 2, 2, 2, 1, 130.5),
    Sketcher.Constraint("DistanceX", 6, 1, 6, 2, 6.3),
    Sketcher.Constraint("DistanceX", 8, 1, 8, 2, 6.7),
    Sketcher.Constraint("DistanceX", 12, 1, 12, 2, 7.2),
    Sketcher.Constraint("DistanceY", 1, 2, 1, 1, 13.4),
    Sketcher.Constraint("DistanceY", 3, 1, 3, 2, 29.6),
    Sketcher.Constraint("DistanceY", 5, 1, 5, 2, 2.8),
    Sketcher.Constraint("DistanceY", 9, 2, 9, 1, 2.55),
])
sketch5.setExpression("Constraints[29]", "Params.sketch5_width")
sketch5.setExpression("Constraints[30]", "Params.sketch5_radius")
sketch5.setExpression("Constraints[31]", "Params.sketch5_width2")
sketch5.setExpression("Constraints[32]", "Params.sketch5_width3")
sketch5.setExpression("Constraints[33]", "Params.sketch5_width4")
pad4 = body.newObject("PartDesign::Pad", "Pad003")
pad4.Profile = sketch5
pad4.setExpression("Length", "Params.pad4_length")
doc.recompute()

fillet4 = body.newObject("PartDesign::Fillet", "Fillet003")
fillet4.Base = (pad4, edges_at(pad4, [
    (-24.075, 130.5, 13.4),
    (-24.075, 56, 13.4),
    (-24.075, 26.5, 29.6),
    (-24.075, 0, 29.6),
]))
fillet4.setExpression("Radius", "Params.fillet4_radius")

sketch6 = body.newObject("Sketcher::SketchObject", "Sketch005")
sketch6.AttachmentSupport = (doc.getObject("XY_Plane"), [""])
sketch6.MapMode = "FlatFace"
sketch6.AttachmentOffset = App.Placement(App.Vector(0, 0, 32.4), App.Rotation())
sketch6.addGeometry([
    Part.LineSegment(App.Vector(-25, 11, 0), App.Vector(-25, 5, 0)),
    Part.LineSegment(App.Vector(-25, 5, 0), App.Vector(-17, 5, 0)),
    Part.LineSegment(App.Vector(-17, 5, 0), App.Vector(-17, 11, 0)),
    Part.LineSegment(App.Vector(-17, 11, 0), App.Vector(-25, 11, 0)),
], False)
sketch6.addConstraint([
    Sketcher.Constraint("Coincident", 0, 2, 1, 1),
    Sketcher.Constraint("Coincident", 1, 2, 2, 1),
    Sketcher.Constraint("Coincident", 2, 2, 3, 1),
    Sketcher.Constraint("Coincident", 3, 2, 0, 1),
    Sketcher.Constraint("Vertical", 0),
    Sketcher.Constraint("Horizontal", 1),
    Sketcher.Constraint("Vertical", 2),
    Sketcher.Constraint("Horizontal", 3),
    Sketcher.Constraint("DistanceX", 1, 1, 1, 2, 8.0),
    Sketcher.Constraint("DistanceY", 0, 2, 0, 1, 6.3),
    Sketcher.Constraint("DistanceX", 0, 2, -1, 1, 25.0),
    Sketcher.Constraint("DistanceY", -1, 1, 0, 2, 5.0),
])
sketch6.setExpression("Constraints[8]", "Params.sketch6_width")
sketch6.setExpression("Constraints[9]", "Params.sketch6_height")
pad5 = body.newObject("PartDesign::Pad", "Pad004")
pad5.Profile = sketch6
pad5.setExpression("Length", "Params.pad5_length")
pad5.Reversed = True
doc.recompute()

fillet5 = body.newObject("PartDesign::Fillet", "Fillet004")
fillet5.Base = (pad5, edges_at(pad5, [(-17, 5, 31.475), (-17, 11.3, 31.475)]))
fillet5.setExpression("Radius", "Params.fillet5_radius")
doc.recompute()

fillet6 = body.newObject("PartDesign::Fillet", "Fillet005")
fillet6.Base = (fillet5, edges_at(fillet5, [(-25, 8.15, 32.4)]))
fillet6.setExpression("Radius", "Params.fillet6_radius")
doc.recompute()

mirrored = body.newObject("PartDesign::Mirrored", "Mirrored")
mirrored.Originals = [pad4, pad5]
mirrored.MirrorPlane = (doc.getObject("YZ_Plane"), [""])
body.Tip = mirrored
doc.recompute()

fillet7 = body.newObject("PartDesign::Fillet", "Fillet006")
fillet7.Base = (mirrored, edges_at(mirrored, [
    (24.075, 130.5, 13.4),
    (24.075, 56, 13.4),
    (24.075, 26.5, 29.6),
    (24.075, 0, 29.6),
]))
fillet7.setExpression("Radius", "Params.fillet7_radius")
doc.recompute()

fillet8 = body.newObject("PartDesign::Fillet", "Fillet007")
fillet8.Base = (fillet7, edges_at(fillet7, [(17, 5, 31.475), (17, 11.3, 31.475)]))
fillet8.setExpression("Radius", "Params.fillet8_radius")
doc.recompute()

fillet9 = body.newObject("PartDesign::Fillet", "Fillet008")
fillet9.Base = (fillet8, edges_at(fillet8, [(25, 8.15, 32.4)]))
fillet9.setExpression("Radius", "Params.fillet9_radius")

doc.recompute()
